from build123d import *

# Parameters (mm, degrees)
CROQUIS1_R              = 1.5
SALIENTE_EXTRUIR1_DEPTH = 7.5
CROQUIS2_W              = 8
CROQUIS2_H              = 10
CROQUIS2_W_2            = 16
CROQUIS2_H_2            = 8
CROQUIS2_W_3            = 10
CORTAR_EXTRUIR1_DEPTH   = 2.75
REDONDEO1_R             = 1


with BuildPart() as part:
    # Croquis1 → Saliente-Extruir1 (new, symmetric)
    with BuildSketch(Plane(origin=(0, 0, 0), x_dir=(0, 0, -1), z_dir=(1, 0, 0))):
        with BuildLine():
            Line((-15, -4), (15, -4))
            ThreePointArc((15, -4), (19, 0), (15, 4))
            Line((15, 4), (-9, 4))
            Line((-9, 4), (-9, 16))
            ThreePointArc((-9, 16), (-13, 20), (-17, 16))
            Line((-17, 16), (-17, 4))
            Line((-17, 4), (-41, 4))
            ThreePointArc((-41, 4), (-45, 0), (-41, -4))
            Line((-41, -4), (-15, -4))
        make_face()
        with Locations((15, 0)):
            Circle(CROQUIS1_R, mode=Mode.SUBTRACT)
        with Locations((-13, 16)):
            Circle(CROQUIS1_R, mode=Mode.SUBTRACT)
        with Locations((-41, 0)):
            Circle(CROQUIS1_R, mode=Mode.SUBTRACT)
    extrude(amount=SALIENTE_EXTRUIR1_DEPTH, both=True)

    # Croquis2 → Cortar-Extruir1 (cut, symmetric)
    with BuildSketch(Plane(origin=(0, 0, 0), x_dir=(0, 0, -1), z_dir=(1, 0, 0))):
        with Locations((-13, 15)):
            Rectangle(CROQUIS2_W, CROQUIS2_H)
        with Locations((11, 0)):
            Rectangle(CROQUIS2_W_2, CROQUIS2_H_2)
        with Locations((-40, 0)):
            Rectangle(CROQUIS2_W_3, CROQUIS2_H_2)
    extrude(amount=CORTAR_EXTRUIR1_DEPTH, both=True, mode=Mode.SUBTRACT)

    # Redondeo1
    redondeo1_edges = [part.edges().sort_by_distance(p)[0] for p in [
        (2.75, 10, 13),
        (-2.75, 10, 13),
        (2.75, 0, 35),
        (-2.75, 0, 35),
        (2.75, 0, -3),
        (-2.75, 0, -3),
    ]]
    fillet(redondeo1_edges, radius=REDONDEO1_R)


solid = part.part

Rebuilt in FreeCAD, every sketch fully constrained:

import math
import FreeCAD as App
import Part
import Sketcher

V = App.Vector
Q = App.Units.Quantity


def edges_at(feature, points):
    """Names of the edges that pass closest to the given points."""
    edges = feature.Shape.Edges
    near = lambda p: min(range(len(edges)), key=lambda i: edges[i].distToShape(Part.Vertex(*p))[0])
    return sorted({f"Edge{near(p) + 1}" for p in points})


def add_polygon(sketch, points):
    """Adds a closed chain of lines whose ends are joined by coincident constraints."""
    first, n = sketch.GeometryCount, len(points)
    for a, b in zip(points, points[1:] + points[:1]):
        sketch.addGeometry(Part.LineSegment(App.Vector(*a, 0), App.Vector(*b, 0)), False)
    for i in range(n):
        sketch.addConstraint(Sketcher.Constraint("Coincident", first + i, 2, first + (i + 1) % n, 1))

doc = App.newDocument("Part")
body = doc.addObject("PartDesign::Body", "Body")

# Sketch on YZ plane
sketch1 = doc.addObject("Sketcher::SketchObject", "Sketch")
body.addObject(sketch1)
sketch1.AttachmentSupport = (doc.YZ_Plane, [""])
sketch1.MapMode = "FlatFace"
sketch1.addGeometry([
    Part.ArcOfCircle(Part.Circle(V(0, -15, 0), V(0, 0, 1), 4), math.radians(180), math.radians(360)),  # 0
    Part.LineSegment(V(4, -15, 0), V(4, 9, 0)),  # 1
    Part.LineSegment(V(4, 9, 0), V(16, 9, 0)),  # 2
    Part.ArcOfCircle(Part.Circle(V(16, 13, 0), V(0, 0, 1), 4), math.radians(-90), math.radians(90)),  # 3
    Part.LineSegment(V(16, 17, 0), V(4, 17, 0)),  # 4
    Part.LineSegment(V(4, 17, 0), V(4, 41, 0)),  # 5
    Part.ArcOfCircle(Part.Circle(V(0, 41, 0), V(0, 0, 1), 4), math.radians(0), math.radians(180)),  # 6
    Part.LineSegment(V(-4, 41, 0), V(-4, -15, 0)),  # 7
    Part.Circle(V(0, 41, 0), V(0, 0, 1), 1.5),  # 8
    Part.Circle(V(0, -15, 0), V(0, 0, 1), 1.5),  # 9
    Part.Circle(V(16, 13, 0), V(0, 0, 1), 1.5),  # 10
], False)
sketch1.addConstraint([
    Sketcher.Constraint("Tangent", 0, 2, 1, 1),
    Sketcher.Constraint("Coincident", 1, 2, 2, 1),
    Sketcher.Constraint("Tangent", 2, 2, 3, 1),
    Sketcher.Constraint("Tangent", 3, 2, 4, 1),
    Sketcher.Constraint("Coincident", 4, 2, 5, 1),
    Sketcher.Constraint("Tangent", 5, 2, 6, 1),
    Sketcher.Constraint("Tangent", 6, 2, 7, 1),
    Sketcher.Constraint("Tangent", 7, 2, 0, 1),
    Sketcher.Constraint("Vertical", 1),
    Sketcher.Constraint("Horizontal", 2),
    Sketcher.Constraint("Horizontal", 4),
    Sketcher.Constraint("Vertical", 5),
    Sketcher.Constraint("Vertical", 7),
    Sketcher.Constraint("Coincident", 8, 3, 6, 3),
    Sketcher.Constraint("Coincident", 9, 3, 0, 3),
    Sketcher.Constraint("Coincident", 10, 3, 3, 3),
    Sketcher.Constraint("Equal", 0, 3),
    Sketcher.Constraint("Equal", 3, 6),
    Sketcher.Constraint("Equal", 8, 9),
    Sketcher.Constraint("Equal", 9, 10),
    Sketcher.Constraint("PointOnObject", 0, 3, -2),
    Sketcher.Constraint("Equal", 1, 5),
    Sketcher.Constraint("Diameter", 8, Q("3 mm")),
    Sketcher.Constraint("Radius", 0, Q("4 mm")),
    Sketcher.Constraint("DistanceX", 2, 1, 2, 2, Q("12 mm")),
    Sketcher.Constraint("DistanceY", 1, 1, 1, 2, Q("24 mm")),
    Sketcher.Constraint("DistanceY", 0, 3, -1, 1, Q("15 mm")),
])
pad1 = doc.addObject("PartDesign::Pad", "Pad")
body.addObject(pad1)
pad1.Profile = sketch1
pad1.Length = 15
pad1.Midplane = True

# Sketch on YZ plane
sketch2 = doc.addObject("Sketcher::SketchObject", "Sketch001")
body.addObject(sketch2)
sketch2.AttachmentSupport = (doc.YZ_Plane, [""])
sketch2.MapMode = "FlatFace"
add_polygon(sketch2, [(20, 17), (10, 17), (10, 9), (20, 9)])  # lines 0-3
add_polygon(sketch2, [(4, -3), (-4, -3), (-4, -19), (4, -19)])  # lines 4-7
add_polygon(sketch2, [(4, 45), (-4, 45), (-4, 35), (4, 35)])  # lines 8-11
sketch2.addConstraint([
    Sketcher.Constraint("Horizontal", 0),
    Sketcher.Constraint("Vertical", 1),
    Sketcher.Constraint("Horizontal", 2),
    Sketcher.Constraint("Vertical", 3),
    Sketcher.Constraint("Horizontal", 4),
    Sketcher.Constraint("Vertical", 5),
    Sketcher.Constraint("Horizontal", 6),
    Sketcher.Constraint("Vertical", 7),
    Sketcher.Constraint("Horizontal", 8),
    Sketcher.Constraint("Vertical", 9),
    Sketcher.Constraint("Horizontal", 10),
    Sketcher.Constraint("Vertical", 11),
    Sketcher.Constraint("Vertical", 5, 2, 8, 2),
    Sketcher.Constraint("Vertical", 7, 2, 10, 2),
    Sketcher.Constraint("Equal", 10, 1),
    Sketcher.Constraint("Equal", 2, 9),
    Sketcher.Constraint("DistanceX", 0, 2, 0, 1, Q("10 mm")),
    Sketcher.Constraint("DistanceX", 4, 2, 4, 1, Q("8 mm")),
    Sketcher.Constraint("DistanceY", 5, 2, 5, 1, Q("16 mm")),
    Sketcher.Constraint("DistanceX", -1, 1, 0, 2, Q("10 mm")),
    Sketcher.Constraint("DistanceY", -1, 1, 0, 2, Q("17 mm")),
    Sketcher.Constraint("DistanceX", 4, 2, -1, 1, Q("4 mm")),
    Sketcher.Constraint("DistanceY", 4, 2, -1, 1, Q("3 mm")),
    Sketcher.Constraint("DistanceY", -1, 1, 8, 2, Q("45 mm")),
])
pocket1 = doc.addObject("PartDesign::Pocket", "Pocket")
body.addObject(pocket1)
pocket1.Profile = sketch2
pocket1.Length = 5.5
pocket1.Midplane = True
doc.recompute()

fillet = doc.addObject("PartDesign::Fillet", "Fillet")
body.addObject(fillet)
fillet.Base = (pocket1, edges_at(pocket1, [
    (2.75, 10, 13),
    (-2.75, 10, 13),
    (2.75, 0, 35),
    (-2.75, 0, 35),
    (2.75, 0, -3),
    (-2.75, 0, -3),
]))
fillet.Radius = 1

doc.recompute()
